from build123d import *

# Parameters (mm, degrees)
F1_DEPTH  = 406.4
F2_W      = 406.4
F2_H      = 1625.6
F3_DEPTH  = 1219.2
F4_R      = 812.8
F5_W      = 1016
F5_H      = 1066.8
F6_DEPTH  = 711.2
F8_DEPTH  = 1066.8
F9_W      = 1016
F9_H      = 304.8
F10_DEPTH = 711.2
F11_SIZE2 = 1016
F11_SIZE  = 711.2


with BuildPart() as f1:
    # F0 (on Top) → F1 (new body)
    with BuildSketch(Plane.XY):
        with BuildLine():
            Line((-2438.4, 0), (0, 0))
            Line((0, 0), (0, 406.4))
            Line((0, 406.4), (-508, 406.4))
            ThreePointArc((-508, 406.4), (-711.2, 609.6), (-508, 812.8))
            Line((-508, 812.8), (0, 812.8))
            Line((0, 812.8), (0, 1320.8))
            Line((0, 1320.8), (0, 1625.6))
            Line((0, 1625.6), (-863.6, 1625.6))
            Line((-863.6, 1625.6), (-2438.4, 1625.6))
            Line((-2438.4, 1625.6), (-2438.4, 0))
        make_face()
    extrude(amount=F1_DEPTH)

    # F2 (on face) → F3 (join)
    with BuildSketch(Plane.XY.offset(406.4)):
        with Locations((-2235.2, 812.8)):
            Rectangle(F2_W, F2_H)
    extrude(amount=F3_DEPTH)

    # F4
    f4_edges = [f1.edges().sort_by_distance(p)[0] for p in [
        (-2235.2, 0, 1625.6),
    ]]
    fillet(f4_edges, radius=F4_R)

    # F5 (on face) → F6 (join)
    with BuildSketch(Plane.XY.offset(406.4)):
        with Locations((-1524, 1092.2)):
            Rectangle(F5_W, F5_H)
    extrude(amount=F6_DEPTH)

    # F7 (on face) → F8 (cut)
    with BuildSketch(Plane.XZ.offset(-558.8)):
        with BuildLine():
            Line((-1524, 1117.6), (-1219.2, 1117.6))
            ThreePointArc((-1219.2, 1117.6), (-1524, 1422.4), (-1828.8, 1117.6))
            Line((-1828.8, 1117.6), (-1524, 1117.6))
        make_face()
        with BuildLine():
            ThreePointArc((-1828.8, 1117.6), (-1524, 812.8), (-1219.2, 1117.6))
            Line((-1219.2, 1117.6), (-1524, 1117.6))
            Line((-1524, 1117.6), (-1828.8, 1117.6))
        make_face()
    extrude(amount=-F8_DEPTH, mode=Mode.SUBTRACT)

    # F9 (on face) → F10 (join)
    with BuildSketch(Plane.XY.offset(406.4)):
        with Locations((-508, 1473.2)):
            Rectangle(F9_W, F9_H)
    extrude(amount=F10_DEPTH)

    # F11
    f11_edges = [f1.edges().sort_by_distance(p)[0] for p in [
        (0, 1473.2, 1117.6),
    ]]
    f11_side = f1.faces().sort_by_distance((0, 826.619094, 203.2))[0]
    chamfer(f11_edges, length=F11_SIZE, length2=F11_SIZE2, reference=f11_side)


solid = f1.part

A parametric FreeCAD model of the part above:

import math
import FreeCAD as App
import Part
import Sketcher
from FreeCAD import Vector
Q = App.Units.Quantity


def edges_at(feature, points):
    """Names of the edges that pass closest to the given points."""
    edges = feature.Shape.Edges
    near = lambda p: min(range(len(edges)), key=lambda i: edges[i].distToShape(Part.Vertex(*p))[0])
    return sorted({f"Edge{near(p) + 1}" for p in points})

doc = App.newDocument("Part")
body = doc.addObject("PartDesign::Body", "Body")

sketch1 = body.newObject("Sketcher::SketchObject", "Sketch")
sketch1.AttachmentSupport = (doc.getObject("XY_Plane"), [""])
sketch1.MapMode = "FlatFace"
sketch1.addGeometry([
    Part.LineSegment(Vector(-2438, 0, 0), Vector(0, 0, 0)),
    Part.LineSegment(Vector(0, 0, 0), Vector(0, 406, 0)),
    Part.LineSegment(Vector(0, 406, 0), Vector(-508, 406, 0)),
    Part.ArcOfCircle(Part.Circle(Vector(-508, 610, 0), Vector(0, 0, 1), 203), math.radians(90), math.radians(270)),
    Part.LineSegment(Vector(-508, 813, 0), Vector(0, 813, 0)),
    Part.LineSegment(Vector(0, 813, 0), Vector(0, 1626, 0)),
    Part.LineSegment(Vector(0, 1626, 0), Vector(-2438, 1626, 0)),
    Part.LineSegment(Vector(-2438, 1626, 0), Vector(-2438, 0, 0)),
], False)
sketch1.addConstraint([
    Sketcher.Constraint("Coincident", 0, 2, 1, 1),
    Sketcher.Constraint("Coincident", 1, 2, 2, 1),
    Sketcher.Constraint("Tangent", 2, 2, 3, 2),
    Sketcher.Constraint("Tangent", 3, 1, 4, 1),
    Sketcher.Constraint("Coincident", 4, 2, 5, 1),
    Sketcher.Constraint("Coincident", 5, 2, 6, 1),
    Sketcher.Constraint("Coincident", 6, 2, 7, 1),
    Sketcher.Constraint("Coincident", 7, 2, 0, 1),
    Sketcher.Constraint("Horizontal", 0),
    Sketcher.Constraint("Vertical", 1),
    Sketcher.Constraint("Horizontal", 2),
    Sketcher.Constraint("Horizontal", 4),
    Sketcher.Constraint("Vertical", 5),
    Sketcher.Constraint("Horizontal", 6),
    Sketcher.Constraint("Vertical", 7),
    Sketcher.Constraint("Coincident", 0, 2, -1, 1),
    Sketcher.Constraint("PointOnObject", 4, 2, -2),
    Sketcher.Constraint("Radius", 3, Q("8 in")),
    Sketcher.Constraint("DistanceX", 0, 1, 0, 2, Q("96 in")),
    Sketcher.Constraint("DistanceX", 2, 2, 2, 1, Q("20 in")),
    Sketcher.Constraint("DistanceY", 1, 1, 1, 2, Q("16 in")),
    Sketcher.Constraint("DistanceY", 5, 1, 5, 2, Q("32 in")),
])
pad1 = body.newObject("PartDesign::Pad", "Pad")
pad1.Profile = sketch1
pad1.Length = Q("16 in")

sketch2 = body.newObject("Sketcher::SketchObject", "Sketch001")
sketch2.AttachmentSupport = (doc.getObject("XY_Plane"), [""])
sketch2.MapMode = "FlatFace"
sketch2.AttachmentOffset = App.Placement(Vector(0, 0, 16 * 25.4), App.Rotation())
sketch2.addGeometry([
    Part.LineSegment(Vector(-2438, 1626, 0), Vector(-2438, 0, 0)),
    Part.LineSegment(Vector(-2438, 0, 0), Vector(-2032, 0, 0)),
    Part.LineSegment(Vector(-2032, 0, 0), Vector(-2032, 1626, 0)),
    Part.LineSegment(Vector(-2032, 1626, 0), Vector(-2438, 1626, 0)),
], False)
sketch2.addConstraint([
    Sketcher.Constraint("Coincident", 0, 2, 1, 1),
    Sketcher.Constraint("Coincident", 1, 2, 2, 1),
    Sketcher.Constraint("Coincident", 2, 2, 3, 1),
    Sketcher.Constraint("Coincident", 3, 2, 0, 1),
    Sketcher.Constraint("Vertical", 0),
    Sketcher.Constraint("Horizontal", 1),
    Sketcher.Constraint("Vertical", 2),
    Sketcher.Constraint("Horizontal", 3),
    Sketcher.Constraint("PointOnObject", 0, 2, -1),
    Sketcher.Constraint("DistanceX", 1, 1, 1, 2, Q("16 in")),
    Sketcher.Constraint("DistanceY", 0, 2, 0, 1, Q("64 in")),
    Sketcher.Constraint("DistanceX", 0, 2, -1, 1, Q("96 in")),
])
pad2 = body.newObject("PartDesign::Pad", "Pad001")
pad2.Profile = sketch2
pad2.Length = Q("48 in")
doc.recompute()

fillet = body.newObject("PartDesign::Fillet", "Fillet")
fillet.Base = (pad2, edges_at(pad2, [(-2235.2, 0, 1625.6)]))
fillet.Radius = Q("32 in")

sketch3 = body.newObject("Sketcher::SketchObject", "Sketch002")
sketch3.AttachmentSupport = (doc.getObject("XY_Plane"), [""])
sketch3.MapMode = "FlatFace"
sketch3.AttachmentOffset = App.Placement(Vector(0, 0, 16 * 25.4), App.Rotation())
sketch3.addGeometry([
    Part.LineSegment(Vector(-2032, 1626, 0), Vector(-2032, 559, 0)),
    Part.LineSegment(Vector(-2032, 559, 0), Vector(-1016, 559, 0)),
    Part.LineSegment(Vector(-1016, 559, 0), Vector(-1016, 1626, 0)),
    Part.LineSegment(Vector(-1016, 1626, 0), Vector(-2032, 1626, 0)),
], False)
sketch3.addConstraint([
    Sketcher.Constraint("Coincident", 0, 2, 1, 1),
    Sketcher.Constraint("Coincident", 1, 2, 2, 1),
    Sketcher.Constraint("Coincident", 2, 2, 3, 1),
    Sketcher.Constraint("Coincident", 3, 2, 0, 1),
    Sketcher.Constraint("Vertical", 0),
    Sketcher.Constraint("Horizontal", 1),
    Sketcher.Constraint("Vertical", 2),
    Sketcher.Constraint("Horizontal", 3),
    Sketcher.Constraint("DistanceX", 1, 1, 1, 2, Q("40 in")),
    Sketcher.Constraint("DistanceY", 0, 2, 0, 1, Q("42 in")),
    Sketcher.Constraint("DistanceX", 0, 2, -1, 1, Q("80 in")),
    Sketcher.Constraint("DistanceY", -1, 1, 0, 2, Q("22 in")),
])
pad3 = body.newObject("PartDesign::Pad", "Pad002")
pad3.Profile = sketch3
pad3.Length = Q("28 in")

sketch4 = body.newObject("Sketcher::SketchObject", "Sketch003")
sketch4.AttachmentSupport = (doc.getObject("XZ_Plane"), [""])
sketch4.MapMode = "FlatFace"
sketch4.AttachmentOffset = App.Placement(Vector(0, 0, -22 * 25.4), App.Rotation())
sketch4.addGeometry(Part.Circle(Vector(-1524, 1118, 0), Vector(0, 0, 1), 305), False)
sketch4.addConstraint([
    Sketcher.Constraint("Diameter", 0, Q("24 in")),
    Sketcher.Constraint("DistanceX", 0, 3, -1, 1, Q("60 in")),
    Sketcher.Constraint("DistanceY", -1, 1, 0, 3, Q("44 in")),
])
pocket1 = body.newObject("PartDesign::Pocket", "Pocket")
pocket1.Profile = sketch4
pocket1.Length = Q("42 in")

sketch5 = body.newObject("Sketcher::SketchObject", "Sketch004")
sketch5.AttachmentSupport = (doc.getObject("XY_Plane"), [""])
sketch5.MapMode = "FlatFace"
sketch5.AttachmentOffset = App.Placement(Vector(0, 0, 16 * 25.4), App.Rotation())
sketch5.addGeometry([
    Part.LineSegment(Vector(-1016, 1626, 0), Vector(-1016, 1321, 0)),
    Part.LineSegment(Vector(-1016, 1321, 0), Vector(0, 1321, 0)),
    Part.LineSegment(Vector(0, 1321, 0), Vector(0, 1626, 0)),
    Part.LineSegment(Vector(0, 1626, 0), Vector(-1016, 1626, 0)),
], False)
sketch5.addConstraint([
    Sketcher.Constraint("Coincident", 0, 2, 1, 1),
    Sketcher.Constraint("Coincident", 1, 2, 2, 1),
    Sketcher.Constraint("Coincident", 2, 2, 3, 1),
    Sketcher.Constraint("Coincident", 3, 2, 0, 1),
    Sketcher.Constraint("Vertical", 0),
    Sketcher.Constraint("Horizontal", 1),
    Sketcher.Constraint("Vertical", 2),
    Sketcher.Constraint("Horizontal", 3),
    Sketcher.Constraint("PointOnObject", 1, 2, -2),
    Sketcher.Constraint("DistanceX", 1, 1, 1, 2, Q("40 in")),
    Sketcher.Constraint("DistanceY", 0, 2, 0, 1, Q("12 in")),
    Sketcher.Constraint("DistanceY", -1, 1, 0, 2, Q("52 in")),
])
pad4 = body.newObject("PartDesign::Pad", "Pad003")
pad4.Profile = sketch5
pad4.Length = Q("28 in")
doc.recompute()

chamfer = body.newObject("PartDesign::Chamfer", "Chamfer")
chamfer.Base = (pad4, edges_at(pad4, [(0, 1473.2, 1117.6)]))
chamfer.ChamferType = "Two distances"
chamfer.Size = Q("28 in")
chamfer.Size2 = Q("40 in")
chamfer.FlipDirection = True

doc.recompute()
